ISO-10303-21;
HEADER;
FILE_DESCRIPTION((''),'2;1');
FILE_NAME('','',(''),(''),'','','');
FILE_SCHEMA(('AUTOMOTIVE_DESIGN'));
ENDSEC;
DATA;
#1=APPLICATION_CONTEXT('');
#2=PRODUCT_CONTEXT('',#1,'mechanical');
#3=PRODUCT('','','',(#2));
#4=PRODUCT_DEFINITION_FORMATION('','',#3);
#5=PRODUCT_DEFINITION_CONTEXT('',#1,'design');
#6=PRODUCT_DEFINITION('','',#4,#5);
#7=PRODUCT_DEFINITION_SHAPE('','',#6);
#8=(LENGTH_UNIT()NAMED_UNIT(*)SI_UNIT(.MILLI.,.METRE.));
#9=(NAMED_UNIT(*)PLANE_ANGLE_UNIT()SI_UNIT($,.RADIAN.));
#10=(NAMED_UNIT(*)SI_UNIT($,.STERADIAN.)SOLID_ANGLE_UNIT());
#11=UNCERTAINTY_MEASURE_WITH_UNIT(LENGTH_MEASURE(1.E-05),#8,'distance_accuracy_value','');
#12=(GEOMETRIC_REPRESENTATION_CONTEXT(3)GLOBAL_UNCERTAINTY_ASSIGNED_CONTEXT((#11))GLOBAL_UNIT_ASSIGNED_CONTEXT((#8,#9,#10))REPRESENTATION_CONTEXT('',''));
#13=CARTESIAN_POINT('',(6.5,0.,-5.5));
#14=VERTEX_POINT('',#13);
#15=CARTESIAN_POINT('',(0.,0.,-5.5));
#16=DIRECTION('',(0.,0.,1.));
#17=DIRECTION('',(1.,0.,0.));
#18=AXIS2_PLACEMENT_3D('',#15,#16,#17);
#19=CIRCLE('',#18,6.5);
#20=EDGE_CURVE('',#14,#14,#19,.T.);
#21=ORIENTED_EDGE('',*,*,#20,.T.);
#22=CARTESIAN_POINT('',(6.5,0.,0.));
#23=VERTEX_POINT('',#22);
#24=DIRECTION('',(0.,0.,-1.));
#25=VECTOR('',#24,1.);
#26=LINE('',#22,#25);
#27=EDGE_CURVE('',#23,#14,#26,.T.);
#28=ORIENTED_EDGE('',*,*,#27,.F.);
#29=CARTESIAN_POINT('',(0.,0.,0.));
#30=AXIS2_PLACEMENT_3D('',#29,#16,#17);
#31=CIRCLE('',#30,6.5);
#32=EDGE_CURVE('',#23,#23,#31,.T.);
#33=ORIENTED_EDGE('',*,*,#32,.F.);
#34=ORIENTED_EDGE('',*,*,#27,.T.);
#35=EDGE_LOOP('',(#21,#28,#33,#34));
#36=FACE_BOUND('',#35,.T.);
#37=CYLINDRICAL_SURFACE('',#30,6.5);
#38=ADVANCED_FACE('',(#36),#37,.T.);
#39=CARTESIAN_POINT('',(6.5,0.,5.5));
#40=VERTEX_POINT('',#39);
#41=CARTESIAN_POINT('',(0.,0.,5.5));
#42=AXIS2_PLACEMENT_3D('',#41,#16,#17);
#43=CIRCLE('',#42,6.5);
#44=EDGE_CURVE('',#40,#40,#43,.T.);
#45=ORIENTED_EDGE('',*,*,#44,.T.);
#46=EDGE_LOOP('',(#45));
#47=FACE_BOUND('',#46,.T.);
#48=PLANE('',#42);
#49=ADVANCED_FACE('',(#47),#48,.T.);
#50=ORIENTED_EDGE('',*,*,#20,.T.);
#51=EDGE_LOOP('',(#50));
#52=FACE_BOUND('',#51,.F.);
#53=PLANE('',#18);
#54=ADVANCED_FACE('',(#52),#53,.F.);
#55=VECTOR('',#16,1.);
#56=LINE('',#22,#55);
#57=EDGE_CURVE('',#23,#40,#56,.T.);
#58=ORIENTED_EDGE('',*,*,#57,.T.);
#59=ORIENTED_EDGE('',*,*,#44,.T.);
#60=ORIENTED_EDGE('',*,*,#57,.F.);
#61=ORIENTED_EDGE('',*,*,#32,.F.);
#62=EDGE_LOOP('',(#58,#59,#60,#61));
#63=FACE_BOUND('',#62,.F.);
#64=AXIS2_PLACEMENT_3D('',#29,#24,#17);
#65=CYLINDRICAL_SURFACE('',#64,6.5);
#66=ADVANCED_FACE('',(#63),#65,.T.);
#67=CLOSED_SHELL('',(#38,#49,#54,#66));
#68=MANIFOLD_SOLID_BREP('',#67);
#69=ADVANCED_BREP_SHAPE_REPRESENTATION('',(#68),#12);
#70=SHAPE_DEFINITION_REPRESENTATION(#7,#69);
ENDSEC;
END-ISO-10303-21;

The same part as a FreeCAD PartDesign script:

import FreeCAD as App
import Part
import Sketcher
Q = App.Units.Quantity

doc = App.newDocument("Part")
body = doc.addObject("PartDesign::Body", "Body")

# Sketch on XY plane
sketch1 = body.newObject("Sketcher::SketchObject", "Sketch")
sketch1.AttachmentSupport = (doc.getObject("XY_Plane"), [""])
sketch1.MapMode = "FlatFace"
sketch1.addGeometry(Part.Circle(App.Vector(0, 0, 0), App.Vector(0, 0, 1), 6.5), False)
sketch1.addConstraint([
    Sketcher.Constraint("Coincident", 0, 3, -1, 1),
    Sketcher.Constraint("Diameter", 0, Q("13 mm")),
])
pad1 = body.newObject("PartDesign::Pad", "Pad")
pad1.Profile = sketch1
pad1.Length = 11
pad1.Midplane = True

doc.recompute()
